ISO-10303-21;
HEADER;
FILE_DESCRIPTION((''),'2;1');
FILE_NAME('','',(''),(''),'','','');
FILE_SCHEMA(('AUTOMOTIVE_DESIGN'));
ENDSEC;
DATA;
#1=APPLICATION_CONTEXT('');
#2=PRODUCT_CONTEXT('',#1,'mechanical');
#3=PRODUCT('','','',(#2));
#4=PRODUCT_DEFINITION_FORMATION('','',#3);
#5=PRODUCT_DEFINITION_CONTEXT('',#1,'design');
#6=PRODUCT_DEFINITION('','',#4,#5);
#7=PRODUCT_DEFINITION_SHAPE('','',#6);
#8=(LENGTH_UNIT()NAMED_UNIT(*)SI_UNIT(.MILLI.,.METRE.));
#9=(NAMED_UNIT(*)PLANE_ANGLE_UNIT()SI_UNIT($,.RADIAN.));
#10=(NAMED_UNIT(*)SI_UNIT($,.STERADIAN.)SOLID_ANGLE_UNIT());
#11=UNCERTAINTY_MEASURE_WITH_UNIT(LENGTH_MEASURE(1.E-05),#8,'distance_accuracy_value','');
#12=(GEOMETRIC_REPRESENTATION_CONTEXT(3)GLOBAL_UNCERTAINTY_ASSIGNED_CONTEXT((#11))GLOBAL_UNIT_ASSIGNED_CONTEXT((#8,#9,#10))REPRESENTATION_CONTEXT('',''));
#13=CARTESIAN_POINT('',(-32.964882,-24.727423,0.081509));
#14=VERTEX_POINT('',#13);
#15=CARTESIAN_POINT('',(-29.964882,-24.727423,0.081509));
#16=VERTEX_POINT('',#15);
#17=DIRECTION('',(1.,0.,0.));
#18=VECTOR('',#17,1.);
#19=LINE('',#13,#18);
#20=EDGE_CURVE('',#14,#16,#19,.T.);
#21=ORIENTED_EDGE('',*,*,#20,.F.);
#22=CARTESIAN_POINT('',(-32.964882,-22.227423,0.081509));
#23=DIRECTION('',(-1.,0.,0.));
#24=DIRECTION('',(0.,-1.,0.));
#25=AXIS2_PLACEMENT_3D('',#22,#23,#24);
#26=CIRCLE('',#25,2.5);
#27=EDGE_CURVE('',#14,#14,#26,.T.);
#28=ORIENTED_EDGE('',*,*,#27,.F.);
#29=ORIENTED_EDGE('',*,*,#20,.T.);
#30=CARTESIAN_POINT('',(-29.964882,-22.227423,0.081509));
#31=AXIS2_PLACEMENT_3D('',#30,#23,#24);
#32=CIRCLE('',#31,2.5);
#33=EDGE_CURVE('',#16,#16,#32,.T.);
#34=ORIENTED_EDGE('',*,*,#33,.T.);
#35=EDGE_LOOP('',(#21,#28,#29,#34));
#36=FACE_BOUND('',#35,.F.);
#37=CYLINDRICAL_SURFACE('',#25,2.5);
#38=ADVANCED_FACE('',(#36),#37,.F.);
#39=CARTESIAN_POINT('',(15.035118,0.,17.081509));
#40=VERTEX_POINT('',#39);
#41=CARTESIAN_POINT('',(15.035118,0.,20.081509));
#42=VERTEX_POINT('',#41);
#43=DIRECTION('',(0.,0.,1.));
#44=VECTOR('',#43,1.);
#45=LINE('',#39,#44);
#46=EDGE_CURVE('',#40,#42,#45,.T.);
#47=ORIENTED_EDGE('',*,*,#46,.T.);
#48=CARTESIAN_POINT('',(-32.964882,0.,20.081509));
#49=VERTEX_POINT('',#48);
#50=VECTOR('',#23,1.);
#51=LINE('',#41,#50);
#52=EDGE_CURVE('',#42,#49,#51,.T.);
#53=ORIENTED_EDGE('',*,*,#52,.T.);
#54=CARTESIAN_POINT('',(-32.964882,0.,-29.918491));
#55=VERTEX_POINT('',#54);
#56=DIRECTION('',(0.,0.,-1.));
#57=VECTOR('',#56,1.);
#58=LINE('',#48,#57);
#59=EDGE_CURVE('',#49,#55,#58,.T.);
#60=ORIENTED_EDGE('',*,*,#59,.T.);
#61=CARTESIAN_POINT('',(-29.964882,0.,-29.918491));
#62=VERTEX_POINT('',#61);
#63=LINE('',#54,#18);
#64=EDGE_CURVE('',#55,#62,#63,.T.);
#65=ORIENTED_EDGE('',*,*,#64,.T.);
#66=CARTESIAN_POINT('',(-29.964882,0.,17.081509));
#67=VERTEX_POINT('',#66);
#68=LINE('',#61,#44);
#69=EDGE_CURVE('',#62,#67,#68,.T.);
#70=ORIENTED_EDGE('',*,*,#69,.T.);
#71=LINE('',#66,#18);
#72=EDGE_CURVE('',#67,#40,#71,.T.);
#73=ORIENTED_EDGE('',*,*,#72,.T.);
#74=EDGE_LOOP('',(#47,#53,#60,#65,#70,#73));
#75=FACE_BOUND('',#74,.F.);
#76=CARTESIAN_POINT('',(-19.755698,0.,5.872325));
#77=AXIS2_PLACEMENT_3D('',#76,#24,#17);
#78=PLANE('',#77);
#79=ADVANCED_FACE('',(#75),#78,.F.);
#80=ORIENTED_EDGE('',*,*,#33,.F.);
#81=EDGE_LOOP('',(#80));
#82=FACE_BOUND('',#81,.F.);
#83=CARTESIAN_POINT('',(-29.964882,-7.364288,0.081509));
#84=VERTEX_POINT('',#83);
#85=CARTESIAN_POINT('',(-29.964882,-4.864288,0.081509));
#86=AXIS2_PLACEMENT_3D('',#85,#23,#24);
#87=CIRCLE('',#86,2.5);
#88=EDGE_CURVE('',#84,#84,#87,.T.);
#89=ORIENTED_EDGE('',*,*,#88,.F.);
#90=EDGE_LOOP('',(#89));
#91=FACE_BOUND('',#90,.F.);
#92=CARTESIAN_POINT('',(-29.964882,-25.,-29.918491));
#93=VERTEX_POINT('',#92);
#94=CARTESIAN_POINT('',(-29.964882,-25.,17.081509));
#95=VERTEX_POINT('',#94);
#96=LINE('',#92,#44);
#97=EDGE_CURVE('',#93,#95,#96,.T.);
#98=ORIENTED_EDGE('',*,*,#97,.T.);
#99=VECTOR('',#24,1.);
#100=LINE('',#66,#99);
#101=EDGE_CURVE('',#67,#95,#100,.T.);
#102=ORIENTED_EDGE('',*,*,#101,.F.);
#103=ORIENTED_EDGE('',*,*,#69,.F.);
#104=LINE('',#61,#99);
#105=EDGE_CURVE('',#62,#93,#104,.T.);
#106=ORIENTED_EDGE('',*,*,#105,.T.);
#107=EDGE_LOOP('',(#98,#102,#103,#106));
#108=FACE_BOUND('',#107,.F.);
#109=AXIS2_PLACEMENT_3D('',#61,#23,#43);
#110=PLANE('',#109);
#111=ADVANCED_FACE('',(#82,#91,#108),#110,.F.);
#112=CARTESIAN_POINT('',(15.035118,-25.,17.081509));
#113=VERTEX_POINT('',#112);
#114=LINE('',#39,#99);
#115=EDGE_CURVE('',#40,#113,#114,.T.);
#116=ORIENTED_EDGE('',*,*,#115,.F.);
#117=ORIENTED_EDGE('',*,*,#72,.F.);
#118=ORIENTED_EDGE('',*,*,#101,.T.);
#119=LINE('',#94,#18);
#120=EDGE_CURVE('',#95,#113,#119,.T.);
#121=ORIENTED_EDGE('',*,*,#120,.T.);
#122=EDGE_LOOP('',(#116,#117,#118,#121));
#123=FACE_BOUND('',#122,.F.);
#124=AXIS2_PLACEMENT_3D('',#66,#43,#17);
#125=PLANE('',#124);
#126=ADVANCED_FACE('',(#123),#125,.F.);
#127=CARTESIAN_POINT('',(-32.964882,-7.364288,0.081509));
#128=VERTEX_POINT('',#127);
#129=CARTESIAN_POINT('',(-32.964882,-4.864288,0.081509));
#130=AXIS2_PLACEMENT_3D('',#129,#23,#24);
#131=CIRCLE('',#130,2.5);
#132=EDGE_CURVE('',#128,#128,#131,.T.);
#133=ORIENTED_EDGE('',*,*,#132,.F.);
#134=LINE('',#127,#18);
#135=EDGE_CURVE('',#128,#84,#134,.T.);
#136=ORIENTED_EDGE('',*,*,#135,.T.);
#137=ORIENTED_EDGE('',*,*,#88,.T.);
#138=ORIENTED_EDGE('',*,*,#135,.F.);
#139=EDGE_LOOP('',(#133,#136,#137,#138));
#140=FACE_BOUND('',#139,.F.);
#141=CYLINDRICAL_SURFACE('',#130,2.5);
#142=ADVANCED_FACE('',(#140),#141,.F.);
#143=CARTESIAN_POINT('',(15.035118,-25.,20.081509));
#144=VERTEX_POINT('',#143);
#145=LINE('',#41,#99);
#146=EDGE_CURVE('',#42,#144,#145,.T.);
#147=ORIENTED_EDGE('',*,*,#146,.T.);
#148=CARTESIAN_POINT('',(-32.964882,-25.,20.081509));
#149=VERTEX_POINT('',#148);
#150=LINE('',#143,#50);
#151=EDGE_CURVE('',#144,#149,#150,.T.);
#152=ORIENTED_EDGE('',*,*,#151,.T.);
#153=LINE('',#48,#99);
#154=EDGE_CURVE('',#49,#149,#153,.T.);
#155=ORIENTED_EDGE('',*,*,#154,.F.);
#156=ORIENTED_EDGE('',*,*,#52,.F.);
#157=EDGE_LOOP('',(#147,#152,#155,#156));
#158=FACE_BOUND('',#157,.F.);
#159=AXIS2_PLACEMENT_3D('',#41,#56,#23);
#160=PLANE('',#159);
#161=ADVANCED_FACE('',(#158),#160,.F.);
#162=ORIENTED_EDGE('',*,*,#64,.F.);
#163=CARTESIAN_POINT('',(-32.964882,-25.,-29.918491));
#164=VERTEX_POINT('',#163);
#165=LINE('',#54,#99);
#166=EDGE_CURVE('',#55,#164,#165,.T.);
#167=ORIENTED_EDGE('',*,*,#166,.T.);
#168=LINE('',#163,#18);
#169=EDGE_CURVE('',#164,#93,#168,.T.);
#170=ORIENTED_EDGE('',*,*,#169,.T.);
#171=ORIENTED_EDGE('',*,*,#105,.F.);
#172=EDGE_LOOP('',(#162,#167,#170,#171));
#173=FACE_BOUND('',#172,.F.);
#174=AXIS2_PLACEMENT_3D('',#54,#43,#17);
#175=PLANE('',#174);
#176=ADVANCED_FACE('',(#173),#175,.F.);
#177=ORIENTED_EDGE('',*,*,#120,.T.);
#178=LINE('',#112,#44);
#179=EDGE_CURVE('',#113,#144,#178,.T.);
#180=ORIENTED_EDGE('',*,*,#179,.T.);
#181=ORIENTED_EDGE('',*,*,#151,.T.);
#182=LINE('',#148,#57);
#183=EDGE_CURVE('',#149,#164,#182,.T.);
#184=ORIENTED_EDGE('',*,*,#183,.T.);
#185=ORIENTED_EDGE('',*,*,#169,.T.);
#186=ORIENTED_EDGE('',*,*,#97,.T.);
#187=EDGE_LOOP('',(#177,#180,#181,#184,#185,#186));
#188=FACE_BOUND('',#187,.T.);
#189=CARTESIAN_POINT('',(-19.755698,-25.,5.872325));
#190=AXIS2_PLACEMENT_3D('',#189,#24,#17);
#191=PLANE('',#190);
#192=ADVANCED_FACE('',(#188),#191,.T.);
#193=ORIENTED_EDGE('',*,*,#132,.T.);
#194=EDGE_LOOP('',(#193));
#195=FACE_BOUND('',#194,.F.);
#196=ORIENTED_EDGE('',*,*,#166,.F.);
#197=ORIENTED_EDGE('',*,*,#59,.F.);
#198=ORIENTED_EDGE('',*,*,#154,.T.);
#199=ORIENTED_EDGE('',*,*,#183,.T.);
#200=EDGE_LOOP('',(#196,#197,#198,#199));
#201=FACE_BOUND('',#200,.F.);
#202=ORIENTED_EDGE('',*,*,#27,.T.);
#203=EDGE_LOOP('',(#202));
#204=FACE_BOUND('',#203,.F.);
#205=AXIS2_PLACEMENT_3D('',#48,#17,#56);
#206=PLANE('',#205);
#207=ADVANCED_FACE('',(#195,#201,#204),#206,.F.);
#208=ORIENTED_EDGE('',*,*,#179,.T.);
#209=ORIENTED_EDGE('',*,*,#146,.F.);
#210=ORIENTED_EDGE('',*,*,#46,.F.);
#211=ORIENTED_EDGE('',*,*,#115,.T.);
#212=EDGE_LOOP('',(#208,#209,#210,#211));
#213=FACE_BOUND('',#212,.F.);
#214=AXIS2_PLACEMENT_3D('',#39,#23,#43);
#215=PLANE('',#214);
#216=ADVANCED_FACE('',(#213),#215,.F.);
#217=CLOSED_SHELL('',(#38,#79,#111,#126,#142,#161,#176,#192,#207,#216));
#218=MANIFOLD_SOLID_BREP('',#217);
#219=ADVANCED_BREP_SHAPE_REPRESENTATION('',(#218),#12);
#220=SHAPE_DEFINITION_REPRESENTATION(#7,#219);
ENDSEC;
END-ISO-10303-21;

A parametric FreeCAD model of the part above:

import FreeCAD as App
import Part
import Sketcher
from FreeCAD import Vector
Q = App.Units.Quantity


def add_polygon(sketch, points):
    """Adds a closed chain of lines whose ends are joined by coincident constraints."""
    first, n = sketch.GeometryCount, len(points)
    for a, b in zip(points, points[1:] + points[:1]):
        sketch.addGeometry(Part.LineSegment(App.Vector(*a, 0), App.Vector(*b, 0)), False)
    for i in range(n):
        sketch.addConstraint(Sketcher.Constraint("Coincident", first + i, 2, first + (i + 1) % n, 1))

doc = App.newDocument("Part")
body = doc.addObject("PartDesign::Body", "Body")

# Sketch on XZ plane
sketch1 = doc.addObject("Sketcher::SketchObject", "Sketch")
body.addObject(sketch1)
sketch1.AttachmentSupport = (doc.XZ_Plane, [""])
sketch1.MapMode = "FlatFace"
add_polygon(sketch1, [(15, 20.1), (-33, 20.1), (-33, -29.9), (-30, -29.9), (-30, 17.1), (15, 17.1)])  # lines 0-5
sketch1.addConstraint([
    Sketcher.Constraint("Horizontal", 0),
    Sketcher.Constraint("Vertical", 1),
    Sketcher.Constraint("Horizontal", 2),
    Sketcher.Constraint("Vertical", 3),
    Sketcher.Constraint("Horizontal", 4),
    Sketcher.Constraint("Vertical", 5),
    Sketcher.Constraint("Equal", 2, 5),
    Sketcher.Constraint("DistanceX", 0, 2, 0, 1, Q("48 mm")),
    Sketcher.Constraint("DistanceX", 2, 1, 2, 2, Q("3 mm")),
    Sketcher.Constraint("DistanceY", 1, 2, 1, 1, Q("50 mm")),
    Sketcher.Constraint("DistanceY", -1, 1, 0, 2, Q("20.081509 mm")),
    Sketcher.Constraint("DistanceX", 2, 2, -1, 1, Q("29.964882 mm")),
])
pad1 = doc.addObject("PartDesign::Pad", "Pad")
body.addObject(pad1)
pad1.Profile = sketch1
pad1.Length = 25

# Sketch on YZ plane
sketch2 = doc.addObject("Sketcher::SketchObject", "Sketch001")
body.addObject(sketch2)
sketch2.AttachmentSupport = (doc.YZ_Plane, [""])
sketch2.MapMode = "FlatFace"
sketch2.AttachmentOffset = App.Placement(Vector(0, 0, -32.964882), App.Rotation())
sketch2.addGeometry([
    Part.Circle(Vector(-22.2, 0.1, 0), Vector(0, 0, 1), 2.5),
    Part.Circle(Vector(-4.9, 0.1, 0), Vector(0, 0, 1), 2.5),
], False)
sketch2.addConstraint([
    Sketcher.Constraint("Equal", 0, 1),
    Sketcher.Constraint("Horizontal", 0, 3, 1, 3),
    Sketcher.Constraint("Diameter", 0, Q("5 mm")),
    Sketcher.Constraint("DistanceY", -1, 1, 0, 3, Q("0.081509 mm")),
    Sketcher.Constraint("DistanceX", 1, 3, -1, 1, Q("4.864288 mm")),
    Sketcher.Constraint("DistanceX", 0, 3, -1, 1, Q("22.227423 mm")),
])
pocket1 = doc.addObject("PartDesign::Pocket", "Pocket")
body.addObject(pocket1)
pocket1.Profile = sketch2
pocket1.Length = 25
pocket1.Reversed = True

doc.recompute()
